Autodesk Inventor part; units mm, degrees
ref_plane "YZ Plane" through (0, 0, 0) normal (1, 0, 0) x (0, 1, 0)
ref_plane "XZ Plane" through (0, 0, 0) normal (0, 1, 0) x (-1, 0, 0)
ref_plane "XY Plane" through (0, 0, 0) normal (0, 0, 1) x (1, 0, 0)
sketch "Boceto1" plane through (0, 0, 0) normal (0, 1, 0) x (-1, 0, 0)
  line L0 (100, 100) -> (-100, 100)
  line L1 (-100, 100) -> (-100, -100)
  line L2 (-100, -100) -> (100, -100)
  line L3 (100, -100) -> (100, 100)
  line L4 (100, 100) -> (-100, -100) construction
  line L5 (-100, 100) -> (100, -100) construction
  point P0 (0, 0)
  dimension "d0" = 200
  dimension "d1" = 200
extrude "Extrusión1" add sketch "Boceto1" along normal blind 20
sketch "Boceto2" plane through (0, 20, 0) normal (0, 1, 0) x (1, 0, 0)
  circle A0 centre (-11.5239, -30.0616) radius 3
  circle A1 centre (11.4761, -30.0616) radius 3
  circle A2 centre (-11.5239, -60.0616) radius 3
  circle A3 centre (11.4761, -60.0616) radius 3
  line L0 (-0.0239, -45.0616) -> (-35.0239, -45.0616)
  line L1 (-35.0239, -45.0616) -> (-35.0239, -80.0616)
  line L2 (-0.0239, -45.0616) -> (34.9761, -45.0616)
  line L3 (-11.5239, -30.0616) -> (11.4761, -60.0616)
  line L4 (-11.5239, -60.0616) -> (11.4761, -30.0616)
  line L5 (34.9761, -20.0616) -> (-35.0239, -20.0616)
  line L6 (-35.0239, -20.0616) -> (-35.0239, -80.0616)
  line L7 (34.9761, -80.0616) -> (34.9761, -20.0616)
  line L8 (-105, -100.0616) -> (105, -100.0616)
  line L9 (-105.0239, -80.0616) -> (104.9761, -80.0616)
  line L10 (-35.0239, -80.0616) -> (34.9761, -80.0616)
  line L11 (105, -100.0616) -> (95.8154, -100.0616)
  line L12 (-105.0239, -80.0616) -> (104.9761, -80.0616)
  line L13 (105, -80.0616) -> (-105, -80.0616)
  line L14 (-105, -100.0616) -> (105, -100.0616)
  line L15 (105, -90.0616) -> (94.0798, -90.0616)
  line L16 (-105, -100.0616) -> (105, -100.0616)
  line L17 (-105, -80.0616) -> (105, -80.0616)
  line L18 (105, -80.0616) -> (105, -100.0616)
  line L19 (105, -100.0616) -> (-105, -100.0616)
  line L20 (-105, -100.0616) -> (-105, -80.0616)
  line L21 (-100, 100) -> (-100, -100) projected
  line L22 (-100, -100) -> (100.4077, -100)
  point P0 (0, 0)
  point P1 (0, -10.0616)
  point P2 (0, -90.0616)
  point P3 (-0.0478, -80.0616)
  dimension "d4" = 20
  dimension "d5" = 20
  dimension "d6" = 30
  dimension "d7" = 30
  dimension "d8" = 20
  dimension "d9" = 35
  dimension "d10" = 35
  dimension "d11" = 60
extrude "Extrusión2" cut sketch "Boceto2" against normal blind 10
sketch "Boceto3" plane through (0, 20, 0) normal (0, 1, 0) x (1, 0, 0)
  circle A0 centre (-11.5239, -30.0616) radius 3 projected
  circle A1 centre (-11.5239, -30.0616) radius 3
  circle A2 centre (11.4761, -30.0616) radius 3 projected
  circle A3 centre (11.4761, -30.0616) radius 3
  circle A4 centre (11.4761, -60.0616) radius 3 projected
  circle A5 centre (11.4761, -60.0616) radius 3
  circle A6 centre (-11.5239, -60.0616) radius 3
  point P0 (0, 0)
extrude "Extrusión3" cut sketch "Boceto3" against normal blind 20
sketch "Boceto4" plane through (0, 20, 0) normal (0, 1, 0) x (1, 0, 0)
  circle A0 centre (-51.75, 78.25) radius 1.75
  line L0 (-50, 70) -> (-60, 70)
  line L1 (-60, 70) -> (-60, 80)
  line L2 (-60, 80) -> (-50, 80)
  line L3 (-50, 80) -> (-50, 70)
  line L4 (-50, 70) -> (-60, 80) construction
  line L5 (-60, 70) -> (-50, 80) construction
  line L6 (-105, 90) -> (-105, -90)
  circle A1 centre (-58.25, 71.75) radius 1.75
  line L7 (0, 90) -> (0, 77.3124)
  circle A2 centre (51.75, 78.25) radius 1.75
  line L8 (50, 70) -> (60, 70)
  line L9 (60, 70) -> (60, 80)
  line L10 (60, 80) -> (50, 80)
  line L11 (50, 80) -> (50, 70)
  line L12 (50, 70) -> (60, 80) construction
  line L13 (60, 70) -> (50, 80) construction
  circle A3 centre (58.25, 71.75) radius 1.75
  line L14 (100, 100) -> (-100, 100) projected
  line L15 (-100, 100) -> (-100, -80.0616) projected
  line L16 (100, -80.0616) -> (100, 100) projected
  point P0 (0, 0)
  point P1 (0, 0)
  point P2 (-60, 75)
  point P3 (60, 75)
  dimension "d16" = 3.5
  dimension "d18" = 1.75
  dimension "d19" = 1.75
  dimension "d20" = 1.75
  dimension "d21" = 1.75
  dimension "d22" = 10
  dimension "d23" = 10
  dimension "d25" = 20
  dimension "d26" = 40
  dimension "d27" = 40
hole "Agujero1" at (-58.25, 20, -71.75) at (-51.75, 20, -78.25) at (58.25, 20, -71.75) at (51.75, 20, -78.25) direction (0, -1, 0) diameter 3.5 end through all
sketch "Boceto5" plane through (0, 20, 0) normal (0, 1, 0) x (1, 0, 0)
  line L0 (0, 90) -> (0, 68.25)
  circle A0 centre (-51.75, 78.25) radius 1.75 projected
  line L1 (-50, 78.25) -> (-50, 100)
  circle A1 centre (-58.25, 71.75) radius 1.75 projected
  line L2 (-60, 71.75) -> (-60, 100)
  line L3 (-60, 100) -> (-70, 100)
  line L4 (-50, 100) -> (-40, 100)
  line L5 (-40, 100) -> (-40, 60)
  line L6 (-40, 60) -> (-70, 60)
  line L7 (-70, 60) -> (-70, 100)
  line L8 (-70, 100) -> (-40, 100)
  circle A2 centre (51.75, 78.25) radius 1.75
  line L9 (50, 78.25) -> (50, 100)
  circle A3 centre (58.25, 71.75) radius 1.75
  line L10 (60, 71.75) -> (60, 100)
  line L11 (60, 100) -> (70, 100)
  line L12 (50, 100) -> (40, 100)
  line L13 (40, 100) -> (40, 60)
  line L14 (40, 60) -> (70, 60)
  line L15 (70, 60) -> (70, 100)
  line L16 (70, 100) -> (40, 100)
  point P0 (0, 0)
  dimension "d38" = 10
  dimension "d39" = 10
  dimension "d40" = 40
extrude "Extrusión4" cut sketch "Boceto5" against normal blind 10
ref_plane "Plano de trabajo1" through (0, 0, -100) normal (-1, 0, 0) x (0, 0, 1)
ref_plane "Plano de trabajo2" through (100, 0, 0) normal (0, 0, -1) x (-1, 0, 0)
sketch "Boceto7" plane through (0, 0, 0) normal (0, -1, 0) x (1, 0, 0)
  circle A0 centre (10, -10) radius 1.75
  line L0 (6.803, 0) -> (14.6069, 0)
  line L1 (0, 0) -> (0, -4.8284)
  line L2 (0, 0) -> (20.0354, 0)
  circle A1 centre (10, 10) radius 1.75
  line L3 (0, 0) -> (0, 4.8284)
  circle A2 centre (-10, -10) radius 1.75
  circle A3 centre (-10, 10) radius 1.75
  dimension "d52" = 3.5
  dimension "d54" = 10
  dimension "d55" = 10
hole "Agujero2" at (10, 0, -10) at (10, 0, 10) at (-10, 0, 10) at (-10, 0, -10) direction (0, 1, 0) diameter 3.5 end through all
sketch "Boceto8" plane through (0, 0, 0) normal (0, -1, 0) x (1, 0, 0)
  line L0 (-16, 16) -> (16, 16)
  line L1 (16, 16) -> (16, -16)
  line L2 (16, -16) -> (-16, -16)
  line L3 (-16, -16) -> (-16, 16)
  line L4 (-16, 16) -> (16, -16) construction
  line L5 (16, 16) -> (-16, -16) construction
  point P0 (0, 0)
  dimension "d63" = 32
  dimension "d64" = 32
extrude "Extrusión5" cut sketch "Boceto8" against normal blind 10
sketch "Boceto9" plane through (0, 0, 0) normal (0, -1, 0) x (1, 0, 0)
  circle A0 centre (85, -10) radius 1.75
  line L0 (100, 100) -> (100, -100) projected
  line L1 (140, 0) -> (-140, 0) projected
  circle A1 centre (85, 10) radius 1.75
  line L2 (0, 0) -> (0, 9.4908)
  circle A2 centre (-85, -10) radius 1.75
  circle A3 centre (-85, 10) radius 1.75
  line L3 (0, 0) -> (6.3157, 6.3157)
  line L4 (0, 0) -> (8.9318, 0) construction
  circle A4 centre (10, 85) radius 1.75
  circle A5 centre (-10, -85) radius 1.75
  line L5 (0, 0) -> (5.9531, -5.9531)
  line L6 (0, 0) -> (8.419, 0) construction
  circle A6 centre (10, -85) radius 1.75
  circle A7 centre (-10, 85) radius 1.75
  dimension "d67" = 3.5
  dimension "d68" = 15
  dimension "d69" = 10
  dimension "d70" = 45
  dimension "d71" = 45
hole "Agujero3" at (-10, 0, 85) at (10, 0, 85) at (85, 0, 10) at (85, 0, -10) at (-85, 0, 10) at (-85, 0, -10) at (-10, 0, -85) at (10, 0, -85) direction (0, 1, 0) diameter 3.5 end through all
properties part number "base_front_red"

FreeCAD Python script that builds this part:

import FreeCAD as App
import Part
import Sketcher

V = App.Vector

doc = App.newDocument("Part")
body = doc.addObject("PartDesign::Body", "Body")

sketch1 = body.newObject("Sketcher::SketchObject", "Sketch")
sketch1.AttachmentSupport = (doc.getObject("XZ_Plane"), [""])
sketch1.MapMode = "FlatFace"
sketch1.addGeometry(Part.LineSegment(V(-100, -100, 0), V(-100, 100, 0)), False)
sketch1.addGeometry(Part.LineSegment(V(-100, 100, 0), V(100, 100, 0)), False)
sketch1.addGeometry(Part.LineSegment(V(100, 100, 0), V(100, -100, 0)), False)
sketch1.addGeometry(Part.LineSegment(V(100, -100, 0), V(-100, -100, 0)), False)
sketch1.addConstraint(Sketcher.Constraint("Coincident", 0, 2, 1, 1))
sketch1.addConstraint(Sketcher.Constraint("Coincident", 1, 2, 2, 1))
sketch1.addConstraint(Sketcher.Constraint("Coincident", 2, 2, 3, 1))
sketch1.addConstraint(Sketcher.Constraint("Coincident", 3, 2, 0, 1))
sketch1.addConstraint(Sketcher.Constraint("Vertical", 0))
sketch1.addConstraint(Sketcher.Constraint("Horizontal", 1))
sketch1.addConstraint(Sketcher.Constraint("Vertical", 2))
sketch1.addConstraint(Sketcher.Constraint("Horizontal", 3))
sketch1.addConstraint(Sketcher.Constraint("Symmetric", 0, 2, 2, 2, -1, 1))
sketch1.addConstraint(Sketcher.Constraint("Equal", 3, 0))
sketch1.addConstraint(Sketcher.Constraint("DistanceX", 1, 1, 1, 2, 200.0))
pad1 = body.newObject("PartDesign::Pad", "Pad")
pad1.Profile = sketch1
pad1.Length = 20
pad1.Reversed = True

sketch2 = body.newObject("Sketcher::SketchObject", "Sketch001")
sketch2.AttachmentSupport = (doc.getObject("XZ_Plane"), [""])
sketch2.MapMode = "FlatFace"
sketch2.AttachmentOffset = App.Placement(V(0, 0, -20), App.Rotation())
sketch2.addGeometry(Part.LineSegment(V(-35, 20.1, 0), V(-35, 80.1, 0)), False)
sketch2.addGeometry(Part.LineSegment(V(-35, 80.1, 0), V(-105, 80.1, 0)), False)
sketch2.addGeometry(Part.LineSegment(V(-105, 80.1, 0), V(-105, 100.1, 0)), False)
sketch2.addGeometry(Part.LineSegment(V(-105, 100.1, 0), V(105, 100.1, 0)), False)
sketch2.addGeometry(Part.LineSegment(V(105, 100.1, 0), V(105, 80.1, 0)), False)
sketch2.addGeometry(Part.LineSegment(V(105, 80.1, 0), V(35, 80.1, 0)), False)
sketch2.addGeometry(Part.LineSegment(V(35, 80.1, 0), V(35, 20.1, 0)), False)
sketch2.addGeometry(Part.LineSegment(V(35, 20.1, 0), V(-35, 20.1, 0)), False)
sketch2.addGeometry(Part.Circle(V(-11.5, 30.1, 0), V(0, 0, 1), 3), False)
sketch2.addGeometry(Part.Circle(V(11.5, 30.1, 0), V(0, 0, 1), 3), False)
sketch2.addGeometry(Part.Circle(V(-11.5, 60.1, 0), V(0, 0, 1), 3), False)
sketch2.addGeometry(Part.Circle(V(11.5, 60.1, 0), V(0, 0, 1), 3), False)
sketch2.addConstraint(Sketcher.Constraint("Coincident", 0, 2, 1, 1))
sketch2.addConstraint(Sketcher.Constraint("Coincident", 1, 2, 2, 1))
sketch2.addConstraint(Sketcher.Constraint("Coincident", 2, 2, 3, 1))
sketch2.addConstraint(Sketcher.Constraint("Coincident", 3, 2, 4, 1))
sketch2.addConstraint(Sketcher.Constraint("Coincident", 4, 2, 5, 1))
sketch2.addConstraint(Sketcher.Constraint("Coincident", 5, 2, 6, 1))
sketch2.addConstraint(Sketcher.Constraint("Coincident", 6, 2, 7, 1))
sketch2.addConstraint(Sketcher.Constraint("Coincident", 7, 2, 0, 1))
sketch2.addConstraint(Sketcher.Constraint("Vertical", 0))
sketch2.addConstraint(Sketcher.Constraint("Horizontal", 1))
sketch2.addConstraint(Sketcher.Constraint("Vertical", 2))
sketch2.addConstraint(Sketcher.Constraint("Horizontal", 3))
sketch2.addConstraint(Sketcher.Constraint("Vertical", 4))
sketch2.addConstraint(Sketcher.Constraint("Horizontal", 5))
sketch2.addConstraint(Sketcher.Constraint("Vertical", 6))
sketch2.addConstraint(Sketcher.Constraint("Horizontal", 7))
sketch2.addConstraint(Sketcher.Constraint("Equal", 8, 9))
sketch2.addConstraint(Sketcher.Constraint("Equal", 9, 10))
sketch2.addConstraint(Sketcher.Constraint("Equal", 10, 11))
sketch2.addConstraint(Sketcher.Constraint("Symmetric", 1, 2, 4, 2, -2))
sketch2.addConstraint(Sketcher.Constraint("Horizontal", 8, 3, 9, 3))
sketch2.addConstraint(Sketcher.Constraint("Horizontal", 10, 3, 11, 3))
sketch2.addConstraint(Sketcher.Constraint("Vertical", 8, 3, 10, 3))
sketch2.addConstraint(Sketcher.Constraint("Vertical", 9, 3, 11, 3))
sketch2.addConstraint(Sketcher.Constraint("DistanceY", 0, 1, 0, 2, 60.0))
sketch2.addConstraint(Sketcher.Constraint("DistanceY", 2, 1, 2, 2, 20.0))
sketch2.addConstraint(Sketcher.Constraint("Diameter", 8, 6.0))
sketch2.addConstraint(Sketcher.Constraint("DistanceY", 8, 3, 10, 3, 30.0))
sketch2.addConstraint(Sketcher.Constraint("DistanceY", 10, 3, 0, 2, 20.0))
sketch2.addConstraint(Sketcher.Constraint("DistanceX", 3, 1, 3, 2, 210.0))
sketch2.addConstraint(Sketcher.Constraint("DistanceX", 7, 2, 7, 1, 70.0))
sketch2.addConstraint(Sketcher.Constraint("DistanceX", 8, 3, 9, 3, 23.0))
sketch2.addConstraint(Sketcher.Constraint("DistanceX", 0, 2, 10, 3, 23.5))
sketch2.addConstraint(Sketcher.Constraint("DistanceX", 1, 2, 1, 1, 69.976))
sketch2.addConstraint(Sketcher.Constraint("DistanceY", -1, 1, 8, 3, 30.0616))
pocket1 = body.newObject("PartDesign::Pocket", "Pocket")
pocket1.Profile = sketch2
pocket1.Length = 10
pocket1.Reversed = True

sketch3 = body.newObject("Sketcher::SketchObject", "Sketch002")
sketch3.AttachmentSupport = (doc.getObject("XZ_Plane"), [""])
sketch3.MapMode = "FlatFace"
sketch3.AttachmentOffset = App.Placement(V(0, 0, -20), App.Rotation())
sketch3.addGeometry(Part.Circle(V(-11.5, 30.1, 0), V(0, 0, 1), 3), False)
sketch3.addGeometry(Part.Circle(V(11.5, 30.1, 0), V(0, 0, 1), 3), False)
sketch3.addGeometry(Part.Circle(V(11.5, 60.1, 0), V(0, 0, 1), 3), False)
sketch3.addGeometry(Part.Circle(V(-11.5, 60.1, 0), V(0, 0, 1), 3), False)
sketch3.addConstraint(Sketcher.Constraint("Equal", 0, 1))
sketch3.addConstraint(Sketcher.Constraint("Equal", 1, 2))
sketch3.addConstraint(Sketcher.Constraint("Equal", 2, 3))
sketch3.addConstraint(Sketcher.Constraint("Horizontal", 0, 3, 1, 3))
sketch3.addConstraint(Sketcher.Constraint("Horizontal", 2, 3, 3, 3))
sketch3.addConstraint(Sketcher.Constraint("Vertical", 1, 3, 2, 3))
sketch3.addConstraint(Sketcher.Constraint("Vertical", 0, 3, 3, 3))
sketch3.addConstraint(Sketcher.Constraint("Diameter", 0, 6.0))
sketch3.addConstraint(Sketcher.Constraint("DistanceX", 0, 3, 1, 3, 23.0))
sketch3.addConstraint(Sketcher.Constraint("DistanceY", 1, 3, 2, 3, 30.0))
sketch3.addConstraint(Sketcher.Constraint("DistanceX", 0, 3, -1, 1, 11.524))
sketch3.addConstraint(Sketcher.Constraint("DistanceY", -1, 1, 0, 3, 30.0616))
pocket2 = body.newObject("PartDesign::Pocket", "Pocket001")
pocket2.Profile = sketch3
pocket2.Length = 20
pocket2.Reversed = True

sketch4 = body.newObject("Sketcher::SketchObject", "Sketch003")
sketch4.AttachmentSupport = (doc.getObject("XZ_Plane"), [""])
sketch4.MapMode = "FlatFace"
sketch4.AttachmentOffset = App.Placement(V(0, 0, -20), App.Rotation())
sketch4.addGeometry(Part.Circle(V(-58.2, -71.8, 0), V(0, 0, 1), 1.8), False)
sketch4.addGeometry(Part.Circle(V(-51.8, -78.2, 0), V(0, 0, 1), 1.8), False)
sketch4.addGeometry(Part.Circle(V(58.2, -71.8, 0), V(0, 0, 1), 1.8), False)
sketch4.addGeometry(Part.Circle(V(51.8, -78.2, 0), V(0, 0, 1), 1.8), False)
sketch4.addConstraint(Sketcher.Constraint("Equal", 0, 1))
sketch4.addConstraint(Sketcher.Constraint("Equal", 1, 2))
sketch4.addConstraint(Sketcher.Constraint("Equal", 2, 3))
sketch4.addConstraint(Sketcher.Constraint("Symmetric", 0, 3, 2, 3, -2))
sketch4.addConstraint(Sketcher.Constraint("Symmetric", 1, 3, 3, 3, -2))
sketch4.addConstraint(Sketcher.Constraint("Diameter", 0, 3.5))
sketch4.addConstraint(Sketcher.Constraint("DistanceX", 1, 3, 2, 3, 110.0))
sketch4.addConstraint(Sketcher.Constraint("DistanceX", 0, 3, 1, 3, 6.5))
sketch4.addConstraint(Sketcher.Constraint("DistanceY", 1, 3, 0, 3, 6.5))
sketch4.addConstraint(Sketcher.Constraint("DistanceY", 0, 3, -1, 1, 71.75))
doc.recompute()
hole = body.newObject("PartDesign::Hole", "Hole")
hole.Profile = sketch4
hole.ThreadType = "None"
hole.Diameter = 3.5
hole.DepthType = "ThroughAll"
hole.Reversed = True

sketch5 = body.newObject("Sketcher::SketchObject", "Sketch004")
sketch5.AttachmentSupport = (doc.getObject("XZ_Plane"), [""])
sketch5.MapMode = "FlatFace"
sketch5.AttachmentOffset = App.Placement(V(0, 0, -20), App.Rotation())
sketch5.addGeometry(Part.LineSegment(V(-40, -100, 0), V(-50, -100, 0)), False)
sketch5.addGeometry(Part.LineSegment(V(-50, -100, 0), V(-60, -100, 0)), False)
sketch5.addGeometry(Part.LineSegment(V(-60, -100, 0), V(-70, -100, 0)), False)
sketch5.addGeometry(Part.LineSegment(V(-70, -100, 0), V(-70, -60, 0)), False)
sketch5.addGeometry(Part.LineSegment(V(-70, -60, 0), V(-40, -60, 0)), False)
sketch5.addGeometry(Part.LineSegment(V(-40, -60, 0), V(-40, -100, 0)), False)
sketch5.addGeometry(Part.Circle(V(-58.2, -71.8, 0), V(0, 0, 1), 1.8), False)
sketch5.addGeometry(Part.Circle(V(-51.8, -78.2, 0), V(0, 0, 1), 1.8), False)
sketch5.addGeometry(Part.LineSegment(V(60, -100, 0), V(50, -100, 0)), False)
sketch5.addGeometry(Part.LineSegment(V(50, -100, 0), V(40, -100, 0)), False)
sketch5.addGeometry(Part.LineSegment(V(40, -100, 0), V(40, -60, 0)), False)
sketch5.addGeometry(Part.LineSegment(V(40, -60, 0), V(70, -60, 0)), False)
sketch5.addGeometry(Part.LineSegment(V(70, -60, 0), V(70, -100, 0)), False)
sketch5.addGeometry(Part.LineSegment(V(70, -100, 0), V(60, -100, 0)), False)
sketch5.addGeometry(Part.Circle(V(58.2, -71.8, 0), V(0, 0, 1), 1.8), False)
sketch5.addGeometry(Part.Circle(V(51.8, -78.2, 0), V(0, 0, 1), 1.8), False)
sketch5.addConstraint(Sketcher.Constraint("Coincident", 0, 2, 1, 1))
sketch5.addConstraint(Sketcher.Constraint("Coincident", 1, 2, 2, 1))
sketch5.addConstraint(Sketcher.Constraint("Coincident", 2, 2, 3, 1))
sketch5.addConstraint(Sketcher.Constraint("Coincident", 3, 2, 4, 1))
sketch5.addConstraint(Sketcher.Constraint("Coincident", 4, 2, 5, 1))
sketch5.addConstraint(Sketcher.Constraint("Coincident", 5, 2, 0, 1))
sketch5.addConstraint(Sketcher.Constraint("Coincident", 8, 2, 9, 1))
sketch5.addConstraint(Sketcher.Constraint("Coincident", 9, 2, 10, 1))
sketch5.addConstraint(Sketcher.Constraint("Coincident", 10, 2, 11, 1))
sketch5.addConstraint(Sketcher.Constraint("Coincident", 11, 2, 12, 1))
sketch5.addConstraint(Sketcher.Constraint("Coincident", 12, 2, 13, 1))
sketch5.addConstraint(Sketcher.Constraint("Coincident", 13, 2, 8, 1))
sketch5.addConstraint(Sketcher.Constraint("Horizontal", 0))
sketch5.addConstraint(Sketcher.Constraint("Horizontal", 1))
sketch5.addConstraint(Sketcher.Constraint("Horizontal", 2))
sketch5.addConstraint(Sketcher.Constraint("Vertical", 3))
sketch5.addConstraint(Sketcher.Constraint("Horizontal", 4))
sketch5.addConstraint(Sketcher.Constraint("Vertical", 5))
sketch5.addConstraint(Sketcher.Constraint("Horizontal", 8))
sketch5.addConstraint(Sketcher.Constraint("Horizontal", 9))
sketch5.addConstraint(Sketcher.Constraint("Vertical", 10))
sketch5.addConstraint(Sketcher.Constraint("Horizontal", 11))
sketch5.addConstraint(Sketcher.Constraint("Vertical", 12))
sketch5.addConstraint(Sketcher.Constraint("Horizontal", 13))
sketch5.addConstraint(Sketcher.Constraint("Equal", 6, 7))
sketch5.addConstraint(Sketcher.Constraint("Equal", 7, 14))
sketch5.addConstraint(Sketcher.Constraint("Equal", 14, 15))
sketch5.addConstraint(Sketcher.Constraint("Symmetric", 6, 3, 14, 3, -2))
sketch5.addConstraint(Sketcher.Constraint("Symmetric", 7, 3, 15, 3, -2))
sketch5.addConstraint(Sketcher.Constraint("Symmetric", 0, 2, 8, 2, -2))
sketch5.addConstraint(Sketcher.Constraint("Symmetric", 4, 2, 10, 2, -2))
sketch5.addConstraint(Sketcher.Constraint("Equal", 0, 1))
sketch5.addConstraint(Sketcher.Constraint("Equal", 1, 2))
sketch5.addConstraint(Sketcher.Constraint("Equal", 2, 8))
sketch5.addConstraint(Sketcher.Constraint("Equal", 4, 11))
sketch5.addConstraint(Sketcher.Constraint("DistanceX", 0, 2, 0, 1, 10.0))
sketch5.addConstraint(Sketcher.Constraint("DistanceY", 3, 1, 3, 2, 40.0))
sketch5.addConstraint(Sketcher.Constraint("DistanceX", 4, 2, -1, 1, 40.0))
sketch5.addConstraint(Sketcher.Constraint("Diameter", 6, 3.5))
sketch5.addConstraint(Sketcher.Constraint("DistanceY", 0, 2, -1, 1, 100.0))
sketch5.addConstraint(Sketcher.Constraint("DistanceX", 7, 3, 14, 3, 110.0))
sketch5.addConstraint(Sketcher.Constraint("DistanceX", 6, 3, 7, 3, 6.5))
sketch5.addConstraint(Sketcher.Constraint("DistanceY", 7, 3, 6, 3, 6.5))
sketch5.addConstraint(Sketcher.Constraint("DistanceY", 6, 3, -1, 1, 71.75))
pocket3 = body.newObject("PartDesign::Pocket", "Pocket002")
pocket3.Profile = sketch5
pocket3.Length = 10
pocket3.Reversed = True

sketch6 = body.newObject("Sketcher::SketchObject", "Sketch005")
sketch6.AttachmentSupport = (doc.getObject("XZ_Plane"), [""])
sketch6.MapMode = "FlatFace"
sketch6.addGeometry(Part.Circle(V(10, -10, 0), V(0, 0, 1), 1.8), False)
sketch6.addGeometry(Part.Circle(V(10, 10, 0), V(0, 0, 1), 1.8), False)
sketch6.addGeometry(Part.Circle(V(-10, 10, 0), V(0, 0, 1), 1.8), False)
sketch6.addGeometry(Part.Circle(V(-10, -10, 0), V(0, 0, 1), 1.8), False)
sketch6.addConstraint(Sketcher.Constraint("Equal", 0, 1))
sketch6.addConstraint(Sketcher.Constraint("Equal", 1, 2))
sketch6.addConstraint(Sketcher.Constraint("Equal", 2, 3))
sketch6.addConstraint(Sketcher.Constraint("Symmetric", 0, 3, 2, 3, -1, 1))
sketch6.addConstraint(Sketcher.Constraint("Symmetric", 1, 3, 3, 3, -1, 1))
sketch6.addConstraint(Sketcher.Constraint("Symmetric", 1, 3, 2, 3, -2))
sketch6.addConstraint(Sketcher.Constraint("Diameter", 0, 3.5))
sketch6.addConstraint(Sketcher.Constraint("DistanceX", -1, 1, 0, 3, 10.0))
sketch6.addConstraint(Sketcher.Constraint("DistanceY", 0, 3, -1, 1, 10.0))
doc.recompute()
hole2 = body.newObject("PartDesign::Hole", "Hole001")
hole2.Profile = sketch6
hole2.ThreadType = "None"
hole2.Diameter = 3.5
hole2.DepthType = "ThroughAll"

sketch7 = body.newObject("Sketcher::SketchObject", "Sketch006")
sketch7.AttachmentSupport = (doc.getObject("XZ_Plane"), [""])
sketch7.MapMode = "FlatFace"
sketch7.addGeometry(Part.LineSegment(V(16, 16, 0), V(-16, 16, 0)), False)
sketch7.addGeometry(Part.LineSegment(V(-16, 16, 0), V(-16, -16, 0)), False)
sketch7.addGeometry(Part.LineSegment(V(-16, -16, 0), V(16, -16, 0)), False)
sketch7.addGeometry(Part.LineSegment(V(16, -16, 0), V(16, 16, 0)), False)
sketch7.addConstraint(Sketcher.Constraint("Coincident", 0, 2, 1, 1))
sketch7.addConstraint(Sketcher.Constraint("Coincident", 1, 2, 2, 1))
sketch7.addConstraint(Sketcher.Constraint("Coincident", 2, 2, 3, 1))
sketch7.addConstraint(Sketcher.Constraint("Coincident", 3, 2, 0, 1))
sketch7.addConstraint(Sketcher.Constraint("Horizontal", 0))
sketch7.addConstraint(Sketcher.Constraint("Vertical", 1))
sketch7.addConstraint(Sketcher.Constraint("Horizontal", 2))
sketch7.addConstraint(Sketcher.Constraint("Vertical", 3))
sketch7.addConstraint(Sketcher.Constraint("Symmetric", 0, 2, 2, 2, -1, 1))
sketch7.addConstraint(Sketcher.Constraint("Equal", 2, 1))
sketch7.addConstraint(Sketcher.Constraint("DistanceX", 0, 2, 0, 1, 32.0))
pocket4 = body.newObject("PartDesign::Pocket", "Pocket003")
pocket4.Profile = sketch7
pocket4.Length = 10

sketch8 = body.newObject("Sketcher::SketchObject", "Sketch007")
sketch8.AttachmentSupport = (doc.getObject("XZ_Plane"), [""])
sketch8.MapMode = "FlatFace"
sketch8.addGeometry(Part.Circle(V(-10, 85, 0), V(0, 0, 1), 1.8), False)
sketch8.addGeometry(Part.Circle(V(10, 85, 0), V(0, 0, 1), 1.8), False)
sketch8.addGeometry(Part.Circle(V(85, 10, 0), V(0, 0, 1), 1.8), False)
sketch8.addGeometry(Part.Circle(V(85, -10, 0), V(0, 0, 1), 1.8), False)
sketch8.addGeometry(Part.Circle(V(-85, 10, 0), V(0, 0, 1), 1.8), False)
sketch8.addGeometry(Part.Circle(V(-85, -10, 0), V(0, 0, 1), 1.8), False)
sketch8.addGeometry(Part.Circle(V(-10, -85, 0), V(0, 0, 1), 1.8), False)
sketch8.addGeometry(Part.Circle(V(10, -85, 0), V(0, 0, 1), 1.8), False)
sketch8.addConstraint(Sketcher.Constraint("Equal", 0, 1))
sketch8.addConstraint(Sketcher.Constraint("Equal", 1, 2))
sketch8.addConstraint(Sketcher.Constraint("Equal", 2, 3))
sketch8.addConstraint(Sketcher.Constraint("Equal", 3, 4))
sketch8.addConstraint(Sketcher.Constraint("Equal", 4, 5))
sketch8.addConstraint(Sketcher.Constraint("Equal", 5, 6))
sketch8.addConstraint(Sketcher.Constraint("Equal", 6, 7))
sketch8.addConstraint(Sketcher.Constraint("Symmetric", 3, 3, 4, 3, -1, 1))
sketch8.addConstraint(Sketcher.Constraint("Symmetric", 2, 3, 5, 3, -1, 1))
sketch8.addConstraint(Sketcher.Constraint("Symmetric", 1, 3, 6, 3, -1, 1))
sketch8.addConstraint(Sketcher.Constraint("Symmetric", 0, 3, 7, 3, -1, 1))
sketch8.addConstraint(Sketcher.Constraint("Symmetric", 0, 3, 1, 3, -2))
sketch8.addConstraint(Sketcher.Constraint("Symmetric", 2, 3, 4, 3, -2))
sketch8.addConstraint(Sketcher.Constraint("Diameter", 0, 3.5))
sketch8.addConstraint(Sketcher.Constraint("DistanceX", 0, 3, -1, 1, 10.0))
sketch8.addConstraint(Sketcher.Constraint("DistanceY", -1, 1, 0, 3, 85.0))
sketch8.addConstraint(Sketcher.Constraint("DistanceX", -1, 1, 2, 3, 85.0))
sketch8.addConstraint(Sketcher.Constraint("DistanceY", -1, 1, 2, 3, 10.0))
doc.recompute()
hole3 = body.newObject("PartDesign::Hole", "Hole002")
hole3.Profile = sketch8
hole3.ThreadType = "None"
hole3.Diameter = 3.5
hole3.DepthType = "ThroughAll"

doc.recompute()
